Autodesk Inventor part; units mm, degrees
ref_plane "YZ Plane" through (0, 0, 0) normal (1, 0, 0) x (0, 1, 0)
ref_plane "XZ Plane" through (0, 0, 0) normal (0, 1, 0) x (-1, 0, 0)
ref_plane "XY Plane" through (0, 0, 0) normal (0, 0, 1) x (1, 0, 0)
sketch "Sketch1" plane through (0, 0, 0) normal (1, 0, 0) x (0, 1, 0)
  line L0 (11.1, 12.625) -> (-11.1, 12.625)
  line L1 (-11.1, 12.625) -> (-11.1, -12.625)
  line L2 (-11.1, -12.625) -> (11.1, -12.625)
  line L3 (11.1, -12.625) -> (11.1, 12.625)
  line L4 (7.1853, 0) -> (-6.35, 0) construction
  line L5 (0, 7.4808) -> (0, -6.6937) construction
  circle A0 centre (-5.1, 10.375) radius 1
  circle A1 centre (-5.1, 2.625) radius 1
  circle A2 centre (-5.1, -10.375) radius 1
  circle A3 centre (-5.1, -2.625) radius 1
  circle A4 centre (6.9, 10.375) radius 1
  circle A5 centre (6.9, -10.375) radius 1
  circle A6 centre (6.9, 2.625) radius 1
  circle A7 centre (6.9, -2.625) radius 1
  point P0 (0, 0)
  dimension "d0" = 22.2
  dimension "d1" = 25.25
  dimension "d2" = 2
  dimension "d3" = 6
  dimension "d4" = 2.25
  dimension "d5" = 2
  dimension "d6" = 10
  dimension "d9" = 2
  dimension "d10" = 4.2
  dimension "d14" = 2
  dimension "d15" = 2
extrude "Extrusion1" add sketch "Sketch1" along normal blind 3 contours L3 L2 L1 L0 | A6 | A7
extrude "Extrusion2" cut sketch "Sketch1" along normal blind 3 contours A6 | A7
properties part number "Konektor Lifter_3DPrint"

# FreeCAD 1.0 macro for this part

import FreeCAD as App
import Part
import Sketcher


def add_polygon(sketch, points):
    """Adds a closed chain of lines whose ends are joined by coincident constraints."""
    first, n = sketch.GeometryCount, len(points)
    for a, b in zip(points, points[1:] + points[:1]):
        sketch.addGeometry(Part.LineSegment(App.Vector(*a, 0), App.Vector(*b, 0)), False)
    for i in range(n):
        sketch.addConstraint(Sketcher.Constraint("Coincident", first + i, 2, first + (i + 1) % n, 1))

doc = App.newDocument("Part")
body = doc.addObject("PartDesign::Body", "Body")

sketch1 = doc.addObject("Sketcher::SketchObject", "Sketch")
body.addObject(sketch1)
sketch1.AttachmentSupport = (doc.YZ_Plane, [""])
sketch1.MapMode = "FlatFace"
add_polygon(sketch1, [(11.1, -12.625), (11.1, 12.625), (-11.1, 12.625), (-11.1, -12.625)])
sketch1.addGeometry(Part.Circle(App.Vector(-5.1, -10.375, 0), App.Vector(0, 0, 1), 1), False)
sketch1.addGeometry(Part.Circle(App.Vector(-5.1, -2.625, 0), App.Vector(0, 0, 1), 1), False)
sketch1.addGeometry(Part.Circle(App.Vector(6.9, -10.375, 0), App.Vector(0, 0, 1), 1), False)
sketch1.addGeometry(Part.Circle(App.Vector(-5.1, 2.625, 0), App.Vector(0, 0, 1), 1), False)
sketch1.addGeometry(Part.Circle(App.Vector(-5.1, 10.375, 0), App.Vector(0, 0, 1), 1), False)
sketch1.addGeometry(Part.Circle(App.Vector(6.9, 10.375, 0), App.Vector(0, 0, 1), 1), False)
sketch1.addConstraint(Sketcher.Constraint("Vertical", 0))
sketch1.addConstraint(Sketcher.Constraint("Horizontal", 1))
sketch1.addConstraint(Sketcher.Constraint("Vertical", 2))
sketch1.addConstraint(Sketcher.Constraint("Horizontal", 3))
sketch1.addConstraint(Sketcher.Constraint("Equal", 4, 5))
sketch1.addConstraint(Sketcher.Constraint("Equal", 5, 6))
sketch1.addConstraint(Sketcher.Constraint("Equal", 6, 7))
sketch1.addConstraint(Sketcher.Constraint("Equal", 7, 8))
sketch1.addConstraint(Sketcher.Constraint("Equal", 8, 9))
sketch1.addConstraint(Sketcher.Constraint("Symmetric", 0, 2, 2, 2, -1, 1))
sketch1.addConstraint(Sketcher.Constraint("Symmetric", 5, 3, 7, 3, -1))
sketch1.addConstraint(Sketcher.Constraint("Symmetric", 4, 3, 8, 3, -1))
sketch1.addConstraint(Sketcher.Constraint("Symmetric", 6, 3, 9, 3, -1))
sketch1.addConstraint(Sketcher.Constraint("Horizontal", 4, 3, 6, 3))
sketch1.addConstraint(Sketcher.Constraint("Vertical", 4, 3, 5, 3))
sketch1.addConstraint(Sketcher.Constraint("Diameter", 4, 2.0))
sketch1.addConstraint(Sketcher.Constraint("DistanceX", 1, 2, 1, 1, 22.2))
sketch1.addConstraint(Sketcher.Constraint("DistanceY", 7, 3, 0, 2, 10.0))
sketch1.addConstraint(Sketcher.Constraint("DistanceX", 1, 2, 8, 3, 6.0))
sketch1.addConstraint(Sketcher.Constraint("DistanceY", 0, 1, 0, 2, 25.25))
sketch1.addConstraint(Sketcher.Constraint("DistanceX", 9, 3, 0, 2, 4.2))
sketch1.addConstraint(Sketcher.Constraint("DistanceY", 9, 3, 0, 2, 2.25))
pad1 = doc.addObject("PartDesign::Pad", "Pad")
body.addObject(pad1)
pad1.Profile = sketch1
pad1.Length = 3

sketch2 = doc.addObject("Sketcher::SketchObject", "Sketch001")
body.addObject(sketch2)
sketch2.AttachmentSupport = (doc.YZ_Plane, [""])
sketch2.MapMode = "FlatFace"
sketch2.addGeometry(Part.Circle(App.Vector(6.9, 2.625, 0), App.Vector(0, 0, 1), 1), False)
sketch2.addGeometry(Part.Circle(App.Vector(6.9, -2.625, 0), App.Vector(0, 0, 1), 1), False)
sketch2.addConstraint(Sketcher.Constraint("Equal", 0, 1))
sketch2.addConstraint(Sketcher.Constraint("Symmetric", 0, 3, 1, 3, -1))
sketch2.addConstraint(Sketcher.Constraint("Diameter", 0, 2.0))
sketch2.addConstraint(Sketcher.Constraint("DistanceX", -1, 1, 0, 3, 6.9))
sketch2.addConstraint(Sketcher.Constraint("DistanceY", 1, 3, 0, 3, 5.25))
pocket1 = doc.addObject("PartDesign::Pocket", "Pocket")
body.addObject(pocket1)
pocket1.Profile = sketch2
pocket1.Length = 3
pocket1.Reversed = True

doc.recompute()
